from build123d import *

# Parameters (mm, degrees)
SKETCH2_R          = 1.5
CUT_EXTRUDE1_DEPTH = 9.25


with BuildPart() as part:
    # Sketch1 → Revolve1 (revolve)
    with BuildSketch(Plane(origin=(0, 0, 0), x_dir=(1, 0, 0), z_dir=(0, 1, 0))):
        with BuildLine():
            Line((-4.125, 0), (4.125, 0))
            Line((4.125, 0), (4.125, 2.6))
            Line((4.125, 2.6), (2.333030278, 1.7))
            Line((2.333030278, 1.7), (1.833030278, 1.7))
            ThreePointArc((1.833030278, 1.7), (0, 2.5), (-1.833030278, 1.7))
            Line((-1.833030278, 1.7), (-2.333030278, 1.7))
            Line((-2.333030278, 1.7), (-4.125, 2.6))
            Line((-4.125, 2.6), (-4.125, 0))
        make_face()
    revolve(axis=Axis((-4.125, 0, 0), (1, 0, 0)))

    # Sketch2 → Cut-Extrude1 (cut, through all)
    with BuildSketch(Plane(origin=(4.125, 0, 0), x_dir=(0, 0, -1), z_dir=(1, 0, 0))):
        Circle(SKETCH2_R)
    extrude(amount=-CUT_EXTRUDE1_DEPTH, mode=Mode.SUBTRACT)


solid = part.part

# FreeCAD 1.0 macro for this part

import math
import FreeCAD as App
import Part
import Sketcher

doc = App.newDocument("Part")
params = doc.addObject("Spreadsheet::Sheet", "Params")
for row, (alias, value) in enumerate([
    ("sketch1_radius", "2.5 mm"),
    ("sketch1_width", "0.5 mm"),
    ("sketch1_height", "2.6 mm"),
    ("sketch1_width2", "8.25 mm"),
    ("revolution_angle", "360 deg"),
    ("sketch2_diameter", "3 mm"),
], start=1):
    params.set(f"A{row}", alias)
    params.set(f"B{row}", "=" + value)
    params.setAlias(f"B{row}", alias)

body = doc.addObject("PartDesign::Body", "Body")

sketch1 = body.newObject("Sketcher::SketchObject", "Sketch")
sketch1.AttachmentSupport = (doc.getObject("XZ_Plane"), [""])
sketch1.MapMode = "FlatFace"
sketch1.addGeometry([
    Part.LineSegment(App.Vector(-4.12, 0, 0), App.Vector(4.12, 0, 0)),
    Part.LineSegment(App.Vector(4.12, 0, 0), App.Vector(4.12, -2.6, 0)),
    Part.LineSegment(App.Vector(4.12, -2.6, 0), App.Vector(2.33, -1.7, 0)),
    Part.LineSegment(App.Vector(2.33, -1.7, 0), App.Vector(1.83, -1.7, 0)),
    Part.ArcOfCircle(Part.Circle(App.Vector(0, 0, 0), App.Vector(0, 0, 1), 2.5), math.radians(-137), math.radians(-43)),
    Part.LineSegment(App.Vector(-1.83, -1.7, 0), App.Vector(-2.33, -1.7, 0)),
    Part.LineSegment(App.Vector(-2.33, -1.7, 0), App.Vector(-4.12, -2.6, 0)),
    Part.LineSegment(App.Vector(-4.12, -2.6, 0), App.Vector(-4.12, 0, 0)),
], False)
sketch1.addConstraint([
    Sketcher.Constraint("Coincident", 0, 2, 1, 1),
    Sketcher.Constraint("Coincident", 1, 2, 2, 1),
    Sketcher.Constraint("Coincident", 2, 2, 3, 1),
    Sketcher.Constraint("Coincident", 3, 2, 4, 2),
    Sketcher.Constraint("Coincident", 4, 1, 5, 1),
    Sketcher.Constraint("Coincident", 5, 2, 6, 1),
    Sketcher.Constraint("Coincident", 6, 2, 7, 1),
    Sketcher.Constraint("Coincident", 7, 2, 0, 1),
    Sketcher.Constraint("Horizontal", 0),
    Sketcher.Constraint("Vertical", 1),
    Sketcher.Constraint("Horizontal", 3),
    Sketcher.Constraint("Horizontal", 5),
    Sketcher.Constraint("Vertical", 7),
    Sketcher.Constraint("Coincident", 4, 3, -1, 1),
    Sketcher.Constraint("Symmetric", 0, 2, 7, 2, -1, 1),
    Sketcher.Constraint("Symmetric", 2, 2, 5, 2, -2),
    Sketcher.Constraint("Horizontal", 1, 2, 6, 2),
    Sketcher.Constraint("Radius", 4, 2.5),
    Sketcher.Constraint("DistanceX", 3, 2, 3, 1, 0.5),
    Sketcher.Constraint("DistanceY", 1, 2, 1, 1, 2.6),
    Sketcher.Constraint("DistanceX", 0, 1, 0, 2, 8.25),
    Sketcher.Constraint("DistanceY", 2, 2, -1, 1, 1.7),
])
sketch1.setExpression("Constraints[17]", "Params.sketch1_radius")
sketch1.setExpression("Constraints[18]", "Params.sketch1_width")
sketch1.setExpression("Constraints[19]", "Params.sketch1_height")
sketch1.setExpression("Constraints[20]", "Params.sketch1_width2")
revolution = body.newObject("PartDesign::Revolution", "Revolution")
revolution.Profile = sketch1
revolution.ReferenceAxis = (sketch1, ["H_Axis"])
revolution.setExpression("Angle", "Params.revolution_angle")

sketch2 = body.newObject("Sketcher::SketchObject", "Sketch001")
sketch2.AttachmentSupport = (doc.getObject("YZ_Plane"), [""])
sketch2.MapMode = "FlatFace"
sketch2.AttachmentOffset = App.Placement(App.Vector(0, 0, 4.125), App.Rotation())
sketch2.addGeometry(Part.Circle(App.Vector(0, 0, 0), App.Vector(0, 0, 1), 1.5), False)
sketch2.addConstraint([
    Sketcher.Constraint("Coincident", 0, 3, -1, 1),
    Sketcher.Constraint("Diameter", 0, 3.0),
])
sketch2.setExpression("Constraints[1]", "Params.sketch2_diameter")
pocket1 = body.newObject("PartDesign::Pocket", "Pocket")
pocket1.Profile = sketch2
pocket1.Type = "ThroughAll"

doc.recompute()
